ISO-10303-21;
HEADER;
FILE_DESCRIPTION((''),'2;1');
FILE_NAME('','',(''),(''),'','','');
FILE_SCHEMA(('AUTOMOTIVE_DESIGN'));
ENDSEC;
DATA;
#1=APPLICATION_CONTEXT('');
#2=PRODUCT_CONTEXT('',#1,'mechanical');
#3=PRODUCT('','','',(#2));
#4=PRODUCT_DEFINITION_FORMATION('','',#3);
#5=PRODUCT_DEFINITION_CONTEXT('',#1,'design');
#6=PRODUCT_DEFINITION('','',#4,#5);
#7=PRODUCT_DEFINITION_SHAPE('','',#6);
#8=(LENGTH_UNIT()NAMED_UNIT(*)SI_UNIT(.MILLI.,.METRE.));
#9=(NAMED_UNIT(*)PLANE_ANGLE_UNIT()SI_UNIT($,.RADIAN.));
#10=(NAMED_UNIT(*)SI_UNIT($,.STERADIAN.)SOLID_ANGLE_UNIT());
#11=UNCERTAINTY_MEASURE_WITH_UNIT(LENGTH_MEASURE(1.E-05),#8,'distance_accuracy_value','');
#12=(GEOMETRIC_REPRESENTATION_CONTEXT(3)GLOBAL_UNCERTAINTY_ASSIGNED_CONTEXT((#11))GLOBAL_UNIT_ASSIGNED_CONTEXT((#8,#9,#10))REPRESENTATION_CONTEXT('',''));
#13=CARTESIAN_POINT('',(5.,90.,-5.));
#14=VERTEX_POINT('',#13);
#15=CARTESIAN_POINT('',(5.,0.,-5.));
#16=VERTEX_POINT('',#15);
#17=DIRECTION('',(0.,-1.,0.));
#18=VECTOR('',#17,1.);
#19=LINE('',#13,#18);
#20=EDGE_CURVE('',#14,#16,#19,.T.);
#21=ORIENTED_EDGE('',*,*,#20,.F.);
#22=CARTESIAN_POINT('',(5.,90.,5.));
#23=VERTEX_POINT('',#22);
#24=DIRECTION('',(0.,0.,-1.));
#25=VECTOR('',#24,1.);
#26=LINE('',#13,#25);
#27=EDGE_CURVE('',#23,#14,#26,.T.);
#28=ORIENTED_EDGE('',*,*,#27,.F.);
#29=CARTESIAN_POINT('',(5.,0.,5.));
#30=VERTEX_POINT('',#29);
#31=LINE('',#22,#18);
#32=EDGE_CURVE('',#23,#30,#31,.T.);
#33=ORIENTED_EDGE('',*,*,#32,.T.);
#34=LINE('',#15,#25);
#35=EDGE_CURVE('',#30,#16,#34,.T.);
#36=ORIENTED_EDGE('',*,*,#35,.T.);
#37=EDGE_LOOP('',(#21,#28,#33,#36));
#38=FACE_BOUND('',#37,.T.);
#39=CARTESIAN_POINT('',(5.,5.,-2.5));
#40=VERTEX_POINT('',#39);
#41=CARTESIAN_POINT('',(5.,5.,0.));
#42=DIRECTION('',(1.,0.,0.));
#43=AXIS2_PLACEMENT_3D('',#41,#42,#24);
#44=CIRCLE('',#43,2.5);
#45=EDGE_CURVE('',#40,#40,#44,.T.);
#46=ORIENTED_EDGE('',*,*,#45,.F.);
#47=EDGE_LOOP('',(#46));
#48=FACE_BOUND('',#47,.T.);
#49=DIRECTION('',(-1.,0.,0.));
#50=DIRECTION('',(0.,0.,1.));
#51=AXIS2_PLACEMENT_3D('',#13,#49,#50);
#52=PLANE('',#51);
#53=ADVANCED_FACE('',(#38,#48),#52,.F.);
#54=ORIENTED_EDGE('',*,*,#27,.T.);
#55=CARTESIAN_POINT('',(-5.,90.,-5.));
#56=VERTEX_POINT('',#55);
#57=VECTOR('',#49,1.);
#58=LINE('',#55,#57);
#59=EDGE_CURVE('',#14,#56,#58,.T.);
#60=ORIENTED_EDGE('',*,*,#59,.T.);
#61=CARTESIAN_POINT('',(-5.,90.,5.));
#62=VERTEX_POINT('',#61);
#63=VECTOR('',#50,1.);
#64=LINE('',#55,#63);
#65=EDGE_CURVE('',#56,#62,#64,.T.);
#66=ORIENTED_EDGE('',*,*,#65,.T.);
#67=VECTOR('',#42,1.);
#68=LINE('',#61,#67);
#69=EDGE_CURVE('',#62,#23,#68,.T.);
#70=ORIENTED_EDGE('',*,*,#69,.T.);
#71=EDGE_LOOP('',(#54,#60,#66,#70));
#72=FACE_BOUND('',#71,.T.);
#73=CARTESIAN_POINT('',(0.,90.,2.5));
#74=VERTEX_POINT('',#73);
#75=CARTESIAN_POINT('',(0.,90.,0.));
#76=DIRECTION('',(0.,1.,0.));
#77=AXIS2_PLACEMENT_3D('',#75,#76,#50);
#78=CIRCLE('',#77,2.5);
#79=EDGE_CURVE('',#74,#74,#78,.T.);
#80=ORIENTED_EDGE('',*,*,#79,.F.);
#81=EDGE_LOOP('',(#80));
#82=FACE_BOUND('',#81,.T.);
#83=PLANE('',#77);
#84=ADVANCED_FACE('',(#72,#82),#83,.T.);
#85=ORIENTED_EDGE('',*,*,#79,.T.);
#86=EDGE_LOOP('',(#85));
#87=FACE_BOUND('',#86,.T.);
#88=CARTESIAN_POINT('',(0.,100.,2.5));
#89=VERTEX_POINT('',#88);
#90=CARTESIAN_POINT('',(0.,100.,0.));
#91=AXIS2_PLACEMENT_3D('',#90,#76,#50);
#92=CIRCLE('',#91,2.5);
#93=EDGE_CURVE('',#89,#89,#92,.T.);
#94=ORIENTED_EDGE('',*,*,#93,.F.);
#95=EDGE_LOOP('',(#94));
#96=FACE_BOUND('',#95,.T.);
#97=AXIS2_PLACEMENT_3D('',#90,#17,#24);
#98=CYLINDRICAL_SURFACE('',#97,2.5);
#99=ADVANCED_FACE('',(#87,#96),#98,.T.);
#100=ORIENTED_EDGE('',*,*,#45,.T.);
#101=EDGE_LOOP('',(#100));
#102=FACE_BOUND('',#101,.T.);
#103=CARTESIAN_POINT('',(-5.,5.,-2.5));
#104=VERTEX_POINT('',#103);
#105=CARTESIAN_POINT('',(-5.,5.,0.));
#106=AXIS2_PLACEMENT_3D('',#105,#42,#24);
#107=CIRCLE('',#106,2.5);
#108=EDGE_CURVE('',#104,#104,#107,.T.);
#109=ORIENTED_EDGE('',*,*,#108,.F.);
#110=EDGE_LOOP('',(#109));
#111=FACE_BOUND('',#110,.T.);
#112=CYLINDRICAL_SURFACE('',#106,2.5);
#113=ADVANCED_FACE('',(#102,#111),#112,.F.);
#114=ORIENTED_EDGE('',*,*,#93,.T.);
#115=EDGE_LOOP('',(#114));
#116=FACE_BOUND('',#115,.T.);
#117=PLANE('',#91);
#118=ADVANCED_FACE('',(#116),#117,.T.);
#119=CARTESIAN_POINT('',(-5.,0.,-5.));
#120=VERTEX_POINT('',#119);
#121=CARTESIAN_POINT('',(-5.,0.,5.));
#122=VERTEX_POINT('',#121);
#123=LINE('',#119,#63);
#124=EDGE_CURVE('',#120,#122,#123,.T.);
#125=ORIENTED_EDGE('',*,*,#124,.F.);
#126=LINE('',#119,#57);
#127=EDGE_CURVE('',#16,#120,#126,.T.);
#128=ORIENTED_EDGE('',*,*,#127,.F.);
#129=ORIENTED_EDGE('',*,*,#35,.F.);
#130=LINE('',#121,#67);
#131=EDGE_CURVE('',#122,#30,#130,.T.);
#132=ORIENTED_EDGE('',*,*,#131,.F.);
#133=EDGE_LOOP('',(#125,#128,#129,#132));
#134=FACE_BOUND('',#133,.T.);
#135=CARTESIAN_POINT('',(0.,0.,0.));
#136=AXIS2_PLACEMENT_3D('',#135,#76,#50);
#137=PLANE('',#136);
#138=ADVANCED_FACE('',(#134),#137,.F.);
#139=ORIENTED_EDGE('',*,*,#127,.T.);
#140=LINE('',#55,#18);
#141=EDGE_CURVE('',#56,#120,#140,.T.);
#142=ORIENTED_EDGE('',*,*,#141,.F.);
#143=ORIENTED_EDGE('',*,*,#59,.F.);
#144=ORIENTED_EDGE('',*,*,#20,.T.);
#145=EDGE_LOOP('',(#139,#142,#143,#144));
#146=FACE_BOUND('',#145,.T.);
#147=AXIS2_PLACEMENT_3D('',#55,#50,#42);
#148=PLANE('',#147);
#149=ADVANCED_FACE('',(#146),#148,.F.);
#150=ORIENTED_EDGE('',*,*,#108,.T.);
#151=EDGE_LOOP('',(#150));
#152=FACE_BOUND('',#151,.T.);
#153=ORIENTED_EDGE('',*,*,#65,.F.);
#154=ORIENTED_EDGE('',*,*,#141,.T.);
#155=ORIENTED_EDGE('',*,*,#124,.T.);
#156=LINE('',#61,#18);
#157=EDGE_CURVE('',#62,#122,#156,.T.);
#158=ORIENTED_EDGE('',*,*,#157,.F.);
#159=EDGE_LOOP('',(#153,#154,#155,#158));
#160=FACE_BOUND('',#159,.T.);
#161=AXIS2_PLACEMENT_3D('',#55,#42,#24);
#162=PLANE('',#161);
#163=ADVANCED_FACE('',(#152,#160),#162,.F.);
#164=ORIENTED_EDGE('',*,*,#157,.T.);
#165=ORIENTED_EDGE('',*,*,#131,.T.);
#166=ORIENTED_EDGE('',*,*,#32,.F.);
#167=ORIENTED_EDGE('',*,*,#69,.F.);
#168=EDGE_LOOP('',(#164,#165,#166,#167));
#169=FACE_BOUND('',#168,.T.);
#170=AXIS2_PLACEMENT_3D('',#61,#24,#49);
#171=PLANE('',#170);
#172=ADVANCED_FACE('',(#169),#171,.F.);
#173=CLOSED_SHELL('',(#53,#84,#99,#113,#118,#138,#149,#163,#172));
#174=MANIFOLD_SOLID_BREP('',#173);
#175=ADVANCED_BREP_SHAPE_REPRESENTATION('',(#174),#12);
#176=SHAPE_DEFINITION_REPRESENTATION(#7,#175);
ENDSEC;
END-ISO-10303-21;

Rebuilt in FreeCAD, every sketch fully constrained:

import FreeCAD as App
import Part
import Sketcher

V = App.Vector
Q = App.Units.Quantity

doc = App.newDocument("Part")
body = doc.addObject("PartDesign::Body", "Body")

# Sketch on XZ plane
sketch1 = body.newObject("Sketcher::SketchObject", "Sketch")
sketch1.AttachmentSupport = (doc.getObject("XZ_Plane"), [""])
sketch1.MapMode = "FlatFace"
sketch1.addGeometry(Part.LineSegment(V(-5, -5, 0), V(-5, 5, 0)), False)
sketch1.addGeometry(Part.LineSegment(V(-5, 5, 0), V(5, 5, 0)), False)
sketch1.addGeometry(Part.LineSegment(V(5, 5, 0), V(5, -5, 0)), False)
sketch1.addGeometry(Part.LineSegment(V(5, -5, 0), V(-5, -5, 0)), False)
sketch1.addConstraint(Sketcher.Constraint("Coincident", 0, 2, 1, 1))
sketch1.addConstraint(Sketcher.Constraint("Coincident", 1, 2, 2, 1))
sketch1.addConstraint(Sketcher.Constraint("Coincident", 2, 2, 3, 1))
sketch1.addConstraint(Sketcher.Constraint("Coincident", 3, 2, 0, 1))
sketch1.addConstraint(Sketcher.Constraint("Vertical", 0))
sketch1.addConstraint(Sketcher.Constraint("Horizontal", 1))
sketch1.addConstraint(Sketcher.Constraint("Vertical", 2))
sketch1.addConstraint(Sketcher.Constraint("Horizontal", 3))
sketch1.addConstraint(Sketcher.Constraint("Symmetric", 0, 2, 2, 2, -1, 1))
sketch1.addConstraint(Sketcher.Constraint("Equal", 3, 0))
sketch1.addConstraint(Sketcher.Constraint("DistanceX", 1, 1, 1, 2, Q("10 mm")))
pad1 = body.newObject("PartDesign::Pad", "Pad")
pad1.Profile = sketch1
pad1.Length = 90
pad1.Reversed = True

# Sketch on XZ plane
sketch2 = body.newObject("Sketcher::SketchObject", "Sketch001")
sketch2.AttachmentSupport = (doc.getObject("XZ_Plane"), [""])
sketch2.MapMode = "FlatFace"
sketch2.AttachmentOffset = App.Placement(V(0, 0, -90), App.Rotation())
sketch2.addGeometry(Part.Circle(V(0, 0, 0), V(0, 0, 1), 2.5), False)
sketch2.addConstraint(Sketcher.Constraint("Coincident", 0, 3, -1, 1))
sketch2.addConstraint(Sketcher.Constraint("Diameter", 0, Q("5 mm")))
pad2 = body.newObject("PartDesign::Pad", "Pad001")
pad2.Profile = sketch2
pad2.Length = 10
pad2.Reversed = True

# Sketch on YZ plane
sketch3 = body.newObject("Sketcher::SketchObject", "Sketch002")
sketch3.AttachmentSupport = (doc.getObject("YZ_Plane"), [""])
sketch3.MapMode = "FlatFace"
sketch3.AttachmentOffset = App.Placement(V(0, 0, 5), App.Rotation())
sketch3.addGeometry(Part.Circle(V(5, 0, 0), V(0, 0, 1), 2.5), False)
sketch3.addConstraint(Sketcher.Constraint("PointOnObject", 0, 3, -1))
sketch3.addConstraint(Sketcher.Constraint("Diameter", 0, Q("5 mm")))
sketch3.addConstraint(Sketcher.Constraint("DistanceX", -1, 1, 0, 3, Q("5 mm")))
pocket1 = body.newObject("PartDesign::Pocket", "Pocket")
pocket1.Profile = sketch3
pocket1.Type = "ThroughAll"

doc.recompute()
